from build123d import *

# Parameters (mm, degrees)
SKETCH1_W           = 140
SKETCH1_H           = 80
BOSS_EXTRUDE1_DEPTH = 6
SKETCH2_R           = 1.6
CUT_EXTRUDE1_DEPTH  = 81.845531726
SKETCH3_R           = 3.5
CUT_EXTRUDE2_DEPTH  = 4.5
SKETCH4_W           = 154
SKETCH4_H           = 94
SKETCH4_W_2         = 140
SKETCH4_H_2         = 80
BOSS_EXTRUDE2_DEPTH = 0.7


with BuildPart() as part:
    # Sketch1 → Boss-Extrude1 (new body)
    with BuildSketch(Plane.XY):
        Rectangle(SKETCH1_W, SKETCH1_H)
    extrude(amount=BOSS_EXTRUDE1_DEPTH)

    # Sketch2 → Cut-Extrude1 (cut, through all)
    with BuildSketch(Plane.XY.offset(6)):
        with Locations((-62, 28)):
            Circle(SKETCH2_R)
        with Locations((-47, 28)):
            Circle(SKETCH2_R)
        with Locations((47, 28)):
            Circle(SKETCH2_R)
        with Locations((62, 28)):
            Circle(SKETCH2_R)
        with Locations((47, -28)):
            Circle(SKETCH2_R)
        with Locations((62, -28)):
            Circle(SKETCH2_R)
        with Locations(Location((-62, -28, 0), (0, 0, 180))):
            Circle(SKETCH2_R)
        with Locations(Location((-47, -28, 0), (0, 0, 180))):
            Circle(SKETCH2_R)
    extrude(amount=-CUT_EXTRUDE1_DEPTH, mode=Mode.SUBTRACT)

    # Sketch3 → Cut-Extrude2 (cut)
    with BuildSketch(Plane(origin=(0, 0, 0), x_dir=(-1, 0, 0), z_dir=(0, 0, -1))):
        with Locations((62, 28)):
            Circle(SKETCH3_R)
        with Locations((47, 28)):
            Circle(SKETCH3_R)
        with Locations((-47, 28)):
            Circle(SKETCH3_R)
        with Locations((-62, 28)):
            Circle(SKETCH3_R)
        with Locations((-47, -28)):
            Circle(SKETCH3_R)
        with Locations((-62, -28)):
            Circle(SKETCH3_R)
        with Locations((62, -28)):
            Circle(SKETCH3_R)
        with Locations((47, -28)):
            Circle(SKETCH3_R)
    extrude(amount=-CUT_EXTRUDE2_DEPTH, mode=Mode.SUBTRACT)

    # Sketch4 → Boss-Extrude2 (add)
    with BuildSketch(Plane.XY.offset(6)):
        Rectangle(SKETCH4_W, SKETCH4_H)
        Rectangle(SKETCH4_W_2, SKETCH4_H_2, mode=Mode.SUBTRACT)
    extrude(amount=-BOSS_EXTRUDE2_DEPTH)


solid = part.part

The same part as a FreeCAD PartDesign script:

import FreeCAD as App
import Part
import Sketcher

V = App.Vector


def add_polygon(sketch, points):
    """Adds a closed chain of lines whose ends are joined by coincident constraints."""
    first, n = sketch.GeometryCount, len(points)
    for a, b in zip(points, points[1:] + points[:1]):
        sketch.addGeometry(Part.LineSegment(App.Vector(*a, 0), App.Vector(*b, 0)), False)
    for i in range(n):
        sketch.addConstraint(Sketcher.Constraint("Coincident", first + i, 2, first + (i + 1) % n, 1))

doc = App.newDocument("Part")
body = doc.addObject("PartDesign::Body", "Body")

sketch1 = body.newObject("Sketcher::SketchObject", "Sketch")
sketch1.AttachmentSupport = (doc.getObject("XY_Plane"), [""])
sketch1.MapMode = "FlatFace"
add_polygon(sketch1, [(-70, 40), (-70, -40), (70, -40), (70, 40)])
sketch1.addConstraint([
    Sketcher.Constraint("Vertical", 0),
    Sketcher.Constraint("Horizontal", 1),
    Sketcher.Constraint("Vertical", 2),
    Sketcher.Constraint("Horizontal", 3),
    Sketcher.Constraint("Symmetric", 0, 2, 2, 2, -1, 1),
    Sketcher.Constraint("DistanceX", 1, 1, 1, 2, 140.0),
    Sketcher.Constraint("DistanceY", 0, 2, 0, 1, 80.0),
])
pad1 = body.newObject("PartDesign::Pad", "Pad")
pad1.Profile = sketch1
pad1.Length = 6

sketch2 = body.newObject("Sketcher::SketchObject", "Sketch001")
sketch2.AttachmentSupport = (doc.getObject("XY_Plane"), [""])
sketch2.MapMode = "FlatFace"
sketch2.AttachmentOffset = App.Placement(V(0, 0, 6), App.Rotation())
sketch2.addGeometry([
    Part.Circle(V(-62, 28, 0), V(0, 0, 1), 1.6),
    Part.Circle(V(-47, 28, 0), V(0, 0, 1), 1.6),
    Part.Circle(V(47, 28, 0), V(0, 0, 1), 1.6),
    Part.Circle(V(62, 28, 0), V(0, 0, 1), 1.6),
    Part.Circle(V(47, -28, 0), V(0, 0, 1), 1.6),
    Part.Circle(V(62, -28, 0), V(0, 0, 1), 1.6),
    Part.Circle(V(-62, -28, 0), V(0, 0, 1), 1.6),
    Part.Circle(V(-47, -28, 0), V(0, 0, 1), 1.6),
], False)
sketch2.addConstraint([
    Sketcher.Constraint("Equal", 0, 1),
    Sketcher.Constraint("Equal", 1, 2),
    Sketcher.Constraint("Equal", 2, 3),
    Sketcher.Constraint("Equal", 3, 4),
    Sketcher.Constraint("Equal", 4, 5),
    Sketcher.Constraint("Equal", 5, 6),
    Sketcher.Constraint("Equal", 6, 7),
    Sketcher.Constraint("Symmetric", 1, 3, 4, 3, -1, 1),
    Sketcher.Constraint("Symmetric", 0, 3, 5, 3, -1, 1),
    Sketcher.Constraint("Symmetric", 3, 3, 6, 3, -1, 1),
    Sketcher.Constraint("Symmetric", 2, 3, 7, 3, -1, 1),
    Sketcher.Constraint("Symmetric", 1, 3, 2, 3, -2),
    Sketcher.Constraint("Symmetric", 0, 3, 3, 3, -2),
    Sketcher.Constraint("Horizontal", 0, 3, 1, 3),
    Sketcher.Constraint("Diameter", 0, 3.2),
    Sketcher.Constraint("DistanceX", 0, 3, -1, 1, 62.0),
    Sketcher.Constraint("DistanceY", -1, 1, 0, 3, 28.0),
    Sketcher.Constraint("DistanceX", 1, 3, -1, 1, 47.0),
])
pocket1 = body.newObject("PartDesign::Pocket", "Pocket")
pocket1.Profile = sketch2
pocket1.Type = "ThroughAll"

sketch3 = body.newObject("Sketcher::SketchObject", "Sketch002")
sketch3.AttachmentSupport = (doc.getObject("XY_Plane"), [""])
sketch3.MapMode = "FlatFace"
sketch3.addGeometry([
    Part.Circle(V(-62, 28, 0), V(0, 0, 1), 3.5),
    Part.Circle(V(-47, 28, 0), V(0, 0, 1), 3.5),
    Part.Circle(V(47, 28, 0), V(0, 0, 1), 3.5),
    Part.Circle(V(62, 28, 0), V(0, 0, 1), 3.5),
    Part.Circle(V(47, -28, 0), V(0, 0, 1), 3.5),
    Part.Circle(V(62, -28, 0), V(0, 0, 1), 3.5),
    Part.Circle(V(-62, -28, 0), V(0, 0, 1), 3.5),
    Part.Circle(V(-47, -28, 0), V(0, 0, 1), 3.5),
], False)
sketch3.addConstraint([
    Sketcher.Constraint("Equal", 0, 1),
    Sketcher.Constraint("Equal", 1, 2),
    Sketcher.Constraint("Equal", 2, 3),
    Sketcher.Constraint("Equal", 3, 4),
    Sketcher.Constraint("Equal", 4, 5),
    Sketcher.Constraint("Equal", 5, 6),
    Sketcher.Constraint("Equal", 6, 7),
    Sketcher.Constraint("Symmetric", 1, 3, 4, 3, -1, 1),
    Sketcher.Constraint("Symmetric", 0, 3, 5, 3, -1, 1),
    Sketcher.Constraint("Symmetric", 3, 3, 6, 3, -1, 1),
    Sketcher.Constraint("Symmetric", 2, 3, 7, 3, -1, 1),
    Sketcher.Constraint("Symmetric", 1, 3, 2, 3, -2),
    Sketcher.Constraint("Symmetric", 0, 3, 3, 3, -2),
    Sketcher.Constraint("Horizontal", 0, 3, 1, 3),
    Sketcher.Constraint("Diameter", 0, 7.0),
    Sketcher.Constraint("DistanceX", 0, 3, -1, 1, 62.0),
    Sketcher.Constraint("DistanceY", -1, 1, 0, 3, 28.0),
    Sketcher.Constraint("DistanceX", 1, 3, -1, 1, 47.0),
])
pocket2 = body.newObject("PartDesign::Pocket", "Pocket001")
pocket2.Profile = sketch3
pocket2.Length = 4.5
pocket2.Reversed = True

sketch4 = body.newObject("Sketcher::SketchObject", "Sketch003")
sketch4.AttachmentSupport = (doc.getObject("XY_Plane"), [""])
sketch4.MapMode = "FlatFace"
sketch4.AttachmentOffset = App.Placement(V(0, 0, 6), App.Rotation())
add_polygon(sketch4, [(-77, 47), (-77, -47), (77, -47), (77, 47)])
add_polygon(sketch4, [(70, -40), (-70, -40), (-70, 40), (70, 40)])
sketch4.addConstraint([
    Sketcher.Constraint("Vertical", 0),
    Sketcher.Constraint("Horizontal", 1),
    Sketcher.Constraint("Vertical", 2),
    Sketcher.Constraint("Horizontal", 3),
    Sketcher.Constraint("Horizontal", 4),
    Sketcher.Constraint("Vertical", 5),
    Sketcher.Constraint("Horizontal", 6),
    Sketcher.Constraint("Vertical", 7),
    Sketcher.Constraint("Symmetric", 0, 2, 2, 2, -1, 1),
    Sketcher.Constraint("Symmetric", 4, 2, 6, 2, -1, 1),
    Sketcher.Constraint("DistanceX", 1, 1, 1, 2, 154.0),
    Sketcher.Constraint("DistanceX", 4, 2, 4, 1, 140.0),
    Sketcher.Constraint("DistanceY", 0, 2, 0, 1, 94.0),
    Sketcher.Constraint("DistanceY", 5, 1, 5, 2, 80.0),
])
pad2 = body.newObject("PartDesign::Pad", "Pad001")
pad2.Profile = sketch4
pad2.Length = 0.7
pad2.Reversed = True

doc.recompute()
